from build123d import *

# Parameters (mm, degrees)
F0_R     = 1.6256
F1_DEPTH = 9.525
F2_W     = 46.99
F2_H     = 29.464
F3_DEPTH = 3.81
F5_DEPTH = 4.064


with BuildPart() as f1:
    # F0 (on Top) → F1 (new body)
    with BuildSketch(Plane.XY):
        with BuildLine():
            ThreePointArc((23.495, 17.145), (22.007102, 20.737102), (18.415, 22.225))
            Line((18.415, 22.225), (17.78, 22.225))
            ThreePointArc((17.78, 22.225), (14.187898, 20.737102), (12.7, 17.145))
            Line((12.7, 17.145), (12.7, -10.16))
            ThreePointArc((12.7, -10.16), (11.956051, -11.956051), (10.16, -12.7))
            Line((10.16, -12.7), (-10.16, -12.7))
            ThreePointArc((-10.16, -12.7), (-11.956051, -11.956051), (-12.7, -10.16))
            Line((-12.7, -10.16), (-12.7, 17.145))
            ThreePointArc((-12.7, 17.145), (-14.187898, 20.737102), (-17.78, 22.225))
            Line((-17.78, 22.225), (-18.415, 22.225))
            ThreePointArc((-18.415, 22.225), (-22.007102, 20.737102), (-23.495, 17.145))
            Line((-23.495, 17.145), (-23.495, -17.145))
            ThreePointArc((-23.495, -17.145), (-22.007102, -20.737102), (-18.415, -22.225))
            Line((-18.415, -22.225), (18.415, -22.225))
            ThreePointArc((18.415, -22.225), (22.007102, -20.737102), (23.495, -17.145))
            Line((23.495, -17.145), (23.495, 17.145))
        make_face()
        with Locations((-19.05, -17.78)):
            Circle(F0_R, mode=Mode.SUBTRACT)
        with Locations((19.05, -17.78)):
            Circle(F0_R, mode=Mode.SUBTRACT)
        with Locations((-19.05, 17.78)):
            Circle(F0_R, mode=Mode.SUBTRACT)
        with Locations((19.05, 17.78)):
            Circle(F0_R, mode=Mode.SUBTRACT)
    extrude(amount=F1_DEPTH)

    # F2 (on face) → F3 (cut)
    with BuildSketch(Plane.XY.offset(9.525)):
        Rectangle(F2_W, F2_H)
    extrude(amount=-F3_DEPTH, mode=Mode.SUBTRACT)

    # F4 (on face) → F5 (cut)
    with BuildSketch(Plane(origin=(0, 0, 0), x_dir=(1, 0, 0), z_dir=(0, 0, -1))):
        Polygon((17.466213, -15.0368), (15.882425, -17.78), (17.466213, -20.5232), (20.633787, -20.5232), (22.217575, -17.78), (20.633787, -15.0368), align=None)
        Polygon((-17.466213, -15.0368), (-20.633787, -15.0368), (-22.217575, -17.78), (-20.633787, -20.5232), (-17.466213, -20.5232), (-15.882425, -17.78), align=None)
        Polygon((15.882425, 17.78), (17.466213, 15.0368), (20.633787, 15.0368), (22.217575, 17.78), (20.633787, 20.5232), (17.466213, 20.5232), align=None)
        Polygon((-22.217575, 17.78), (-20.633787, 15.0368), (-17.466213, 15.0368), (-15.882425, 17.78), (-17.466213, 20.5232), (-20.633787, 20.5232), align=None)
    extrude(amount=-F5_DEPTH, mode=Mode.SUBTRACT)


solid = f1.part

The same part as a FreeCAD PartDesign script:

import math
import FreeCAD as App
import Part
import Sketcher
from FreeCAD import Vector
Q = App.Units.Quantity


def add_polygon(sketch, points):
    """Adds a closed chain of lines whose ends are joined by coincident constraints."""
    first, n = sketch.GeometryCount, len(points)
    for a, b in zip(points, points[1:] + points[:1]):
        sketch.addGeometry(Part.LineSegment(App.Vector(*a, 0), App.Vector(*b, 0)), False)
    for i in range(n):
        sketch.addConstraint(Sketcher.Constraint("Coincident", first + i, 2, first + (i + 1) % n, 1))

doc = App.newDocument("Part")
body = doc.addObject("PartDesign::Body", "Body")

# Sketch on XY plane
sketch1 = doc.addObject("Sketcher::SketchObject", "Sketch")
body.addObject(sketch1)
sketch1.AttachmentSupport = (doc.XY_Plane, [""])
sketch1.MapMode = "FlatFace"
sketch1.addGeometry([
    Part.ArcOfCircle(Part.Circle(Vector(18.4, 17.1, 0), Vector(0, 0, 1), 5.1), math.radians(0), math.radians(90)),  # 0
    Part.LineSegment(Vector(18.4, 22.2, 0), Vector(17.8, 22.2, 0)),  # 1
    Part.ArcOfCircle(Part.Circle(Vector(17.8, 17.1, 0), Vector(0, 0, 1), 5.1), math.radians(90), math.radians(180)),  # 2
    Part.LineSegment(Vector(12.7, 17.1, 0), Vector(12.7, -10.2, 0)),  # 3
    Part.ArcOfCircle(Part.Circle(Vector(10.2, -10.2, 0), Vector(0, 0, 1), 2.5), math.radians(-90), math.radians(0)),  # 4
    Part.LineSegment(Vector(10.2, -12.7, 0), Vector(-10.2, -12.7, 0)),  # 5
    Part.ArcOfCircle(Part.Circle(Vector(-10.2, -10.2, 0), Vector(0, 0, 1), 2.5), math.radians(-180), math.radians(-90)),  # 6
    Part.LineSegment(Vector(-12.7, -10.2, 0), Vector(-12.7, 17.1, 0)),  # 7
    Part.ArcOfCircle(Part.Circle(Vector(-17.8, 17.1, 0), Vector(0, 0, 1), 5.1), math.radians(0), math.radians(90)),  # 8
    Part.LineSegment(Vector(-17.8, 22.2, 0), Vector(-18.4, 22.2, 0)),  # 9
    Part.ArcOfCircle(Part.Circle(Vector(-18.4, 17.1, 0), Vector(0, 0, 1), 5.1), math.radians(90), math.radians(180)),  # 10
    Part.LineSegment(Vector(-23.5, 17.1, 0), Vector(-23.5, -17.1, 0)),  # 11
    Part.ArcOfCircle(Part.Circle(Vector(-18.4, -17.1, 0), Vector(0, 0, 1), 5.1), math.radians(-180), math.radians(-90)),  # 12
    Part.LineSegment(Vector(-18.4, -22.2, 0), Vector(18.4, -22.2, 0)),  # 13
    Part.ArcOfCircle(Part.Circle(Vector(18.4, -17.1, 0), Vector(0, 0, 1), 5.1), math.radians(-90), math.radians(0)),  # 14
    Part.LineSegment(Vector(23.5, -17.1, 0), Vector(23.5, 17.1, 0)),  # 15
    Part.Circle(Vector(-19.1, -17.8, 0), Vector(0, 0, 1), 1.6),  # 16
    Part.Circle(Vector(19.1, -17.8, 0), Vector(0, 0, 1), 1.6),  # 17
    Part.Circle(Vector(-19.1, 17.8, 0), Vector(0, 0, 1), 1.6),  # 18
    Part.Circle(Vector(19.1, 17.8, 0), Vector(0, 0, 1), 1.6),  # 19
], False)
sketch1.addConstraint([
    Sketcher.Constraint("Tangent", 0, 2, 1, 1),
    Sketcher.Constraint("Tangent", 1, 2, 2, 1),
    Sketcher.Constraint("Tangent", 2, 2, 3, 1),
    Sketcher.Constraint("Tangent", 3, 2, 4, 2),
    Sketcher.Constraint("Tangent", 4, 1, 5, 1),
    Sketcher.Constraint("Tangent", 5, 2, 6, 2),
    Sketcher.Constraint("Tangent", 6, 1, 7, 1),
    Sketcher.Constraint("Tangent", 7, 2, 8, 1),
    Sketcher.Constraint("Tangent", 8, 2, 9, 1),
    Sketcher.Constraint("Tangent", 9, 2, 10, 1),
    Sketcher.Constraint("Tangent", 10, 2, 11, 1),
    Sketcher.Constraint("Tangent", 11, 2, 12, 1),
    Sketcher.Constraint("Tangent", 12, 2, 13, 1),
    Sketcher.Constraint("Tangent", 13, 2, 14, 1),
    Sketcher.Constraint("Tangent", 14, 2, 15, 1),
    Sketcher.Constraint("Tangent", 15, 2, 0, 1),
    Sketcher.Constraint("Horizontal", 1),
    Sketcher.Constraint("Vertical", 3),
    Sketcher.Constraint("Horizontal", 5),
    Sketcher.Constraint("Vertical", 7),
    Sketcher.Constraint("Horizontal", 9),
    Sketcher.Constraint("Vertical", 11),
    Sketcher.Constraint("Horizontal", 13),
    Sketcher.Constraint("Vertical", 15),
    Sketcher.Constraint("Equal", 0, 2),
    Sketcher.Constraint("Equal", 4, 6),
    Sketcher.Constraint("Equal", 2, 8),
    Sketcher.Constraint("Equal", 8, 10),
    Sketcher.Constraint("Equal", 10, 12),
    Sketcher.Constraint("Equal", 12, 14),
    Sketcher.Constraint("Equal", 16, 17),
    Sketcher.Constraint("Equal", 17, 18),
    Sketcher.Constraint("Equal", 18, 19),
    Sketcher.Constraint("Symmetric", 0, 3, 12, 3, -1, 1),
    Sketcher.Constraint("Symmetric", 17, 3, 18, 3, -1, 1),
    Sketcher.Constraint("Symmetric", 16, 3, 19, 3, -1, 1),
    Sketcher.Constraint("Symmetric", 2, 3, 8, 3, -2),
    Sketcher.Constraint("Symmetric", 16, 3, 17, 3, -2),
    Sketcher.Constraint("Radius", 0, Q("0.2000001 in")),
    Sketcher.Constraint("Radius", 4, Q("0.1 in")),
    Sketcher.Constraint("Diameter", 16, Q("0.128 in")),
    Sketcher.Constraint("DistanceX", 5, 2, 5, 1, Q("0.8 in")),
    Sketcher.Constraint("DistanceX", 13, 1, 13, 2, Q("1.45 in")),
    Sketcher.Constraint("DistanceY", 11, 2, 11, 1, Q("1.35 in")),
    Sketcher.Constraint("DistanceY", 4, 3, -1, 1, Q("0.4 in")),
    Sketcher.Constraint("DistanceY", 16, 3, -1, 1, Q("0.7 in")),
    Sketcher.Constraint("DistanceX", 16, 3, -1, 1, Q("0.75 in")),
])
pad1 = doc.addObject("PartDesign::Pad", "Pad")
body.addObject(pad1)
pad1.Profile = sketch1
pad1.Length = Q("0.375 in")

# Sketch on XY plane
sketch2 = doc.addObject("Sketcher::SketchObject", "Sketch001")
body.addObject(sketch2)
sketch2.AttachmentSupport = (doc.XY_Plane, [""])
sketch2.MapMode = "FlatFace"
sketch2.AttachmentOffset = App.Placement(Vector(0, 0, 0.375 * 25.4), App.Rotation())
add_polygon(sketch2, [(-23, 15), (-23, -15), (23, -15), (23, 15)])  # lines 0-3
sketch2.addConstraint([
    Sketcher.Constraint("Vertical", 0),
    Sketcher.Constraint("Horizontal", 1),
    Sketcher.Constraint("Vertical", 2),
    Sketcher.Constraint("Horizontal", 3),
    Sketcher.Constraint("Symmetric", 0, 2, 2, 2, -1, 1),
    Sketcher.Constraint("DistanceX", 1, 1, 1, 2, Q("1.85 in")),
    Sketcher.Constraint("DistanceY", 0, 2, 0, 1, Q("1.16 in")),
])
pocket1 = doc.addObject("PartDesign::Pocket", "Pocket")
body.addObject(pocket1)
pocket1.Profile = sketch2
pocket1.Length = Q("0.15 in")

# Sketch on XY plane
sketch3 = doc.addObject("Sketcher::SketchObject", "Sketch002")
body.addObject(sketch3)
sketch3.AttachmentSupport = (doc.XY_Plane, [""])
sketch3.MapMode = "FlatFace"
add_polygon(sketch3, [(17.5, 15), (15.9, 17.8), (17.5, 20.5), (20.6, 20.5), (22.2, 17.8), (20.6, 15)])  # lines 0-5
add_polygon(sketch3, [(-17.5, 15), (-20.6, 15), (-22.2, 17.8), (-20.6, 20.5), (-17.5, 20.5), (-15.9, 17.8)])  # lines 6-11
add_polygon(sketch3, [(15.9, -17.8), (17.5, -15), (20.6, -15), (22.2, -17.8), (20.6, -20.5), (17.5, -20.5)])  # lines 12-17
add_polygon(sketch3, [(-22.2, -17.8), (-20.6, -15), (-17.5, -15), (-15.9, -17.8), (-17.5, -20.5), (-20.6, -20.5)])  # lines 18-23
sketch3.addConstraint([
    Sketcher.Constraint("Horizontal", 2),
    Sketcher.Constraint("Horizontal", 5),
    Sketcher.Constraint("Horizontal", 6),
    Sketcher.Constraint("Horizontal", 9),
    Sketcher.Constraint("Horizontal", 13),
    Sketcher.Constraint("Horizontal", 16),
    Sketcher.Constraint("Horizontal", 19),
    Sketcher.Constraint("Horizontal", 22),
    Sketcher.Constraint("Symmetric", 11, 2, 12, 2, -1, 1),
    Sketcher.Constraint("Symmetric", 7, 2, 14, 2, -1, 1),
    Sketcher.Constraint("Symmetric", 8, 2, 15, 2, -1, 1),
    Sketcher.Constraint("Symmetric", 10, 2, 17, 2, -1, 1),
    Sketcher.Constraint("Symmetric", 4, 2, 18, 2, -1, 1),
    Sketcher.Constraint("Symmetric", 0, 2, 20, 2, -1, 1),
    Sketcher.Constraint("Symmetric", 1, 2, 21, 2, -1, 1),
    Sketcher.Constraint("Symmetric", 3, 2, 23, 2, -1, 1),
    Sketcher.Constraint("Symmetric", 4, 2, 6, 2, -2),
    Sketcher.Constraint("Symmetric", 3, 2, 7, 2, -2),
    Sketcher.Constraint("Symmetric", 2, 2, 8, 2, -2),
    Sketcher.Constraint("Symmetric", 0, 2, 10, 2, -2),
    Sketcher.Constraint("Parallel", 0, 3),
    Sketcher.Constraint("Parallel", 1, 4),
    Sketcher.Constraint("Parallel", 3, 7),
    Sketcher.Constraint("Parallel", 7, 10),
    Sketcher.Constraint("Parallel", 8, 11),
    Sketcher.Constraint("Parallel", 10, 14),
    Sketcher.Constraint("Parallel", 14, 17),
    Sketcher.Constraint("Parallel", 17, 20),
    Sketcher.Constraint("Parallel", 20, 23),
    Sketcher.Constraint("Horizontal", 0, 2, 3, 2),
    Sketcher.Constraint("Vertical", 2, 2, 4, 2),
    Sketcher.Constraint("Angle", 0, Q("120.000012 deg")),
    Sketcher.Constraint("DistanceY", -1, 1, 0, 2, Q("0.7 in")),
    Sketcher.Constraint("DistanceX", 6, 2, 5, 2, Q("1.5 in")),
    Sketcher.Constraint("DistanceY", -1, 1, 1, 2, Q("0.808 in")),
    Sketcher.Constraint("DistanceX", 2, 1, 2, 2, Q("3.167574 mm")),
])
pocket2 = doc.addObject("PartDesign::Pocket", "Pocket001")
body.addObject(pocket2)
pocket2.Profile = sketch3
pocket2.Length = Q("0.16 in")
pocket2.Reversed = True

doc.recompute()
